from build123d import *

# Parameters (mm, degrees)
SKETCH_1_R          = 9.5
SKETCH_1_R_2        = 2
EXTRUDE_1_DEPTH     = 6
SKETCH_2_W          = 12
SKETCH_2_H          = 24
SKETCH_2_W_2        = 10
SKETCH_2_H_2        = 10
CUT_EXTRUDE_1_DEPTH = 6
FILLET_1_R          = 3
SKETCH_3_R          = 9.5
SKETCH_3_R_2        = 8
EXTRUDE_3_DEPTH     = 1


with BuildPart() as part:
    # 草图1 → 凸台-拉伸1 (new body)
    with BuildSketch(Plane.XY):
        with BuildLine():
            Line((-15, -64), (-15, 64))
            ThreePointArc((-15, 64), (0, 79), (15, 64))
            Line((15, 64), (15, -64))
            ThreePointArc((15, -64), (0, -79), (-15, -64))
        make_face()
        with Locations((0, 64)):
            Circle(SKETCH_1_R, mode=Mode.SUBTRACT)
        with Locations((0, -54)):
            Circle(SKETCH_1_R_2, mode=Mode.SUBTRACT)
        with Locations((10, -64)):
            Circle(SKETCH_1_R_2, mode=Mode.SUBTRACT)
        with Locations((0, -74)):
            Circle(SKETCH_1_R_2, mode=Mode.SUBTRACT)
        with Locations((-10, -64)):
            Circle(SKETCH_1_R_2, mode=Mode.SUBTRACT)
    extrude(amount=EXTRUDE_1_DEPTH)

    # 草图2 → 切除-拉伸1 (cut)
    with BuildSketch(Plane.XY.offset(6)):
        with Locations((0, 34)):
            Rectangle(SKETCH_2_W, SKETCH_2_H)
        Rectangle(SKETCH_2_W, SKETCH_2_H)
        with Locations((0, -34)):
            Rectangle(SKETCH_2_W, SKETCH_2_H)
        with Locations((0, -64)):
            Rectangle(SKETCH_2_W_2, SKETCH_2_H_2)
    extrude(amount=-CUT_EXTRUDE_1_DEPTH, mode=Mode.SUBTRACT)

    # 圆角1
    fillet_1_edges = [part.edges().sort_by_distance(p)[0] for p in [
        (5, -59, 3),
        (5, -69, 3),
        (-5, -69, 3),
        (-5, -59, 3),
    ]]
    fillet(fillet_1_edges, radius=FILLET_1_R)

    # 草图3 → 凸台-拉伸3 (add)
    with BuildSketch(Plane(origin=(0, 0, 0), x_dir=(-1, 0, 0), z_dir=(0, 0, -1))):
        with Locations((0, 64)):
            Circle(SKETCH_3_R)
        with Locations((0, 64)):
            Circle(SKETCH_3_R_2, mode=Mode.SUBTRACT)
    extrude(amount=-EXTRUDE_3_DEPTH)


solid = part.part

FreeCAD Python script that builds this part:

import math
import FreeCAD as App
import Part
import Sketcher

V = App.Vector


def edges_at(feature, points):
    """Names of the edges that pass closest to the given points."""
    edges = feature.Shape.Edges
    near = lambda p: min(range(len(edges)), key=lambda i: edges[i].distToShape(Part.Vertex(*p))[0])
    return sorted({f"Edge{near(p) + 1}" for p in points})

doc = App.newDocument("Part")
body = doc.addObject("PartDesign::Body", "Body")

sketch1 = doc.addObject("Sketcher::SketchObject", "Sketch")
body.addObject(sketch1)
sketch1.AttachmentSupport = (doc.XY_Plane, [""])
sketch1.MapMode = "FlatFace"
sketch1.addGeometry(Part.LineSegment(V(-15, 64, 0), V(-15, -64, 0)), False)
sketch1.addGeometry(Part.ArcOfCircle(Part.Circle(V(0, -64, 0), V(0, 0, 1), 15), math.radians(180), math.radians(360)), False)
sketch1.addGeometry(Part.LineSegment(V(15, -64, 0), V(15, 64, 0)), False)
sketch1.addGeometry(Part.ArcOfCircle(Part.Circle(V(0, 64, 0), V(0, 0, 1), 15), math.radians(0), math.radians(180)), False)
sketch1.addGeometry(Part.Circle(V(10, -64, 0), V(0, 0, 1), 2), False)
sketch1.addGeometry(Part.Circle(V(0, -74, 0), V(0, 0, 1), 2), False)
sketch1.addGeometry(Part.Circle(V(0, -54, 0), V(0, 0, 1), 2), False)
sketch1.addGeometry(Part.Circle(V(-10, -64, 0), V(0, 0, 1), 2), False)
sketch1.addGeometry(Part.Circle(V(0, 64, 0), V(0, 0, 1), 9.5), False)
sketch1.addConstraint(Sketcher.Constraint("Tangent", 0, 2, 1, 1))
sketch1.addConstraint(Sketcher.Constraint("Tangent", 1, 2, 2, 1))
sketch1.addConstraint(Sketcher.Constraint("Tangent", 2, 2, 3, 1))
sketch1.addConstraint(Sketcher.Constraint("Tangent", 3, 2, 0, 1))
sketch1.addConstraint(Sketcher.Constraint("Vertical", 0))
sketch1.addConstraint(Sketcher.Constraint("Vertical", 2))
sketch1.addConstraint(Sketcher.Constraint("Coincident", 8, 3, 3, 3))
sketch1.addConstraint(Sketcher.Constraint("Equal", 4, 5))
sketch1.addConstraint(Sketcher.Constraint("Equal", 5, 6))
sketch1.addConstraint(Sketcher.Constraint("Equal", 6, 7))
sketch1.addConstraint(Sketcher.Constraint("Symmetric", 1, 3, 3, 3, -1, 1))
sketch1.addConstraint(Sketcher.Constraint("Symmetric", 4, 3, 7, 3, -2))
sketch1.addConstraint(Sketcher.Constraint("PointOnObject", 5, 3, -2))
sketch1.addConstraint(Sketcher.Constraint("PointOnObject", 6, 3, -2))
sketch1.addConstraint(Sketcher.Constraint("Horizontal", 1, 3, 4, 3))
sketch1.addConstraint(Sketcher.Constraint("Diameter", 4, 4.0))
sketch1.addConstraint(Sketcher.Constraint("Diameter", 8, 19.0))
sketch1.addConstraint(Sketcher.Constraint("Radius", 1, 15.0))
sketch1.addConstraint(Sketcher.Constraint("DistanceY", 0, 2, 0, 1, 128.0))
sketch1.addConstraint(Sketcher.Constraint("DistanceX", -1, 1, 4, 3, 10.0))
sketch1.addConstraint(Sketcher.Constraint("DistanceY", 5, 3, -1, 1, 74.0))
sketch1.addConstraint(Sketcher.Constraint("DistanceY", 6, 3, -1, 1, 54.0))
pad1 = doc.addObject("PartDesign::Pad", "Pad")
body.addObject(pad1)
pad1.Profile = sketch1
pad1.Length = 6

sketch2 = doc.addObject("Sketcher::SketchObject", "Sketch001")
body.addObject(sketch2)
sketch2.AttachmentSupport = (doc.XY_Plane, [""])
sketch2.MapMode = "FlatFace"
sketch2.AttachmentOffset = App.Placement(V(0, 0, 6), App.Rotation())
sketch2.addGeometry(Part.LineSegment(V(-6, 46, 0), V(-6, 22, 0)), False)
sketch2.addGeometry(Part.LineSegment(V(-6, 22, 0), V(6, 22, 0)), False)
sketch2.addGeometry(Part.LineSegment(V(6, 22, 0), V(6, 46, 0)), False)
sketch2.addGeometry(Part.LineSegment(V(6, 46, 0), V(-6, 46, 0)), False)
sketch2.addGeometry(Part.LineSegment(V(-6, 12, 0), V(-6, -12, 0)), False)
sketch2.addGeometry(Part.LineSegment(V(-6, -12, 0), V(6, -12, 0)), False)
sketch2.addGeometry(Part.LineSegment(V(6, -12, 0), V(6, 12, 0)), False)
sketch2.addGeometry(Part.LineSegment(V(6, 12, 0), V(-6, 12, 0)), False)
sketch2.addGeometry(Part.LineSegment(V(-6, -22, 0), V(-6, -46, 0)), False)
sketch2.addGeometry(Part.LineSegment(V(-6, -46, 0), V(6, -46, 0)), False)
sketch2.addGeometry(Part.LineSegment(V(6, -46, 0), V(6, -22, 0)), False)
sketch2.addGeometry(Part.LineSegment(V(6, -22, 0), V(-6, -22, 0)), False)
sketch2.addGeometry(Part.LineSegment(V(-5, -59, 0), V(-5, -69, 0)), False)
sketch2.addGeometry(Part.LineSegment(V(-5, -69, 0), V(5, -69, 0)), False)
sketch2.addGeometry(Part.LineSegment(V(5, -69, 0), V(5, -59, 0)), False)
sketch2.addGeometry(Part.LineSegment(V(5, -59, 0), V(-5, -59, 0)), False)
sketch2.addConstraint(Sketcher.Constraint("Coincident", 0, 2, 1, 1))
sketch2.addConstraint(Sketcher.Constraint("Coincident", 1, 2, 2, 1))
sketch2.addConstraint(Sketcher.Constraint("Coincident", 2, 2, 3, 1))
sketch2.addConstraint(Sketcher.Constraint("Coincident", 3, 2, 0, 1))
sketch2.addConstraint(Sketcher.Constraint("Coincident", 4, 2, 5, 1))
sketch2.addConstraint(Sketcher.Constraint("Coincident", 5, 2, 6, 1))
sketch2.addConstraint(Sketcher.Constraint("Coincident", 6, 2, 7, 1))
sketch2.addConstraint(Sketcher.Constraint("Coincident", 7, 2, 4, 1))
sketch2.addConstraint(Sketcher.Constraint("Coincident", 8, 2, 9, 1))
sketch2.addConstraint(Sketcher.Constraint("Coincident", 9, 2, 10, 1))
sketch2.addConstraint(Sketcher.Constraint("Coincident", 10, 2, 11, 1))
sketch2.addConstraint(Sketcher.Constraint("Coincident", 11, 2, 8, 1))
sketch2.addConstraint(Sketcher.Constraint("Coincident", 12, 2, 13, 1))
sketch2.addConstraint(Sketcher.Constraint("Coincident", 13, 2, 14, 1))
sketch2.addConstraint(Sketcher.Constraint("Coincident", 14, 2, 15, 1))
sketch2.addConstraint(Sketcher.Constraint("Coincident", 15, 2, 12, 1))
sketch2.addConstraint(Sketcher.Constraint("Vertical", 0))
sketch2.addConstraint(Sketcher.Constraint("Horizontal", 1))
sketch2.addConstraint(Sketcher.Constraint("Vertical", 2))
sketch2.addConstraint(Sketcher.Constraint("Horizontal", 3))
sketch2.addConstraint(Sketcher.Constraint("Vertical", 4))
sketch2.addConstraint(Sketcher.Constraint("Horizontal", 5))
sketch2.addConstraint(Sketcher.Constraint("Vertical", 6))
sketch2.addConstraint(Sketcher.Constraint("Horizontal", 7))
sketch2.addConstraint(Sketcher.Constraint("Vertical", 8))
sketch2.addConstraint(Sketcher.Constraint("Horizontal", 9))
sketch2.addConstraint(Sketcher.Constraint("Vertical", 10))
sketch2.addConstraint(Sketcher.Constraint("Horizontal", 11))
sketch2.addConstraint(Sketcher.Constraint("Vertical", 12))
sketch2.addConstraint(Sketcher.Constraint("Horizontal", 13))
sketch2.addConstraint(Sketcher.Constraint("Vertical", 14))
sketch2.addConstraint(Sketcher.Constraint("Horizontal", 15))
sketch2.addConstraint(Sketcher.Constraint("Symmetric", 4, 2, 6, 2, -1, 1))
sketch2.addConstraint(Sketcher.Constraint("Symmetric", 2, 2, 8, 2, -1, 1))
sketch2.addConstraint(Sketcher.Constraint("Symmetric", 0, 2, 10, 2, -1, 1))
sketch2.addConstraint(Sketcher.Constraint("Vertical", 3, 2, 4, 2))
sketch2.addConstraint(Sketcher.Constraint("Vertical", 2, 2, 5, 2))
sketch2.addConstraint(Sketcher.Constraint("Equal", 2, 4))
sketch2.addConstraint(Sketcher.Constraint("Equal", 15, 12))
sketch2.addConstraint(Sketcher.Constraint("DistanceX", 1, 1, 1, 2, 12.0))
sketch2.addConstraint(Sketcher.Constraint("DistanceX", 13, 1, 13, 2, 10.0))
sketch2.addConstraint(Sketcher.Constraint("DistanceY", 0, 2, 0, 1, 24.0))
sketch2.addConstraint(Sketcher.Constraint("DistanceY", -1, 1, 0, 2, 22.0))
sketch2.addConstraint(Sketcher.Constraint("DistanceX", 12, 2, -1, 1, 5.0))
sketch2.addConstraint(Sketcher.Constraint("DistanceY", 12, 2, -1, 1, 69.0))
pocket1 = doc.addObject("PartDesign::Pocket", "Pocket")
body.addObject(pocket1)
pocket1.Profile = sketch2
pocket1.Length = 6
doc.recompute()

fillet = doc.addObject("PartDesign::Fillet", "Fillet")
body.addObject(fillet)
fillet.Base = (pocket1, edges_at(pocket1, [
    (5, -59, 3),
    (5, -69, 3),
    (-5, -69, 3),
    (-5, -59, 3),
]))
fillet.Radius = 3

sketch3 = doc.addObject("Sketcher::SketchObject", "Sketch002")
body.addObject(sketch3)
sketch3.AttachmentSupport = (doc.XY_Plane, [""])
sketch3.MapMode = "FlatFace"
sketch3.addGeometry(Part.Circle(V(0, 64, 0), V(0, 0, 1), 10), False)
sketch3.addGeometry(Part.Circle(V(0, 64, 0), V(0, 0, 1), 8), False)
sketch3.addConstraint(Sketcher.Constraint("Coincident", 1, 3, 0, 3))
sketch3.addConstraint(Sketcher.Constraint("PointOnObject", 0, 3, -2))
sketch3.addConstraint(Sketcher.Constraint("Diameter", 0, 19.0))
sketch3.addConstraint(Sketcher.Constraint("Diameter", 1, 16.0))
sketch3.addConstraint(Sketcher.Constraint("DistanceY", -1, 1, 0, 3, 64.0))
pad2 = doc.addObject("PartDesign::Pad", "Pad001")
body.addObject(pad2)
pad2.Profile = sketch3
pad2.Length = 1

doc.recompute()
